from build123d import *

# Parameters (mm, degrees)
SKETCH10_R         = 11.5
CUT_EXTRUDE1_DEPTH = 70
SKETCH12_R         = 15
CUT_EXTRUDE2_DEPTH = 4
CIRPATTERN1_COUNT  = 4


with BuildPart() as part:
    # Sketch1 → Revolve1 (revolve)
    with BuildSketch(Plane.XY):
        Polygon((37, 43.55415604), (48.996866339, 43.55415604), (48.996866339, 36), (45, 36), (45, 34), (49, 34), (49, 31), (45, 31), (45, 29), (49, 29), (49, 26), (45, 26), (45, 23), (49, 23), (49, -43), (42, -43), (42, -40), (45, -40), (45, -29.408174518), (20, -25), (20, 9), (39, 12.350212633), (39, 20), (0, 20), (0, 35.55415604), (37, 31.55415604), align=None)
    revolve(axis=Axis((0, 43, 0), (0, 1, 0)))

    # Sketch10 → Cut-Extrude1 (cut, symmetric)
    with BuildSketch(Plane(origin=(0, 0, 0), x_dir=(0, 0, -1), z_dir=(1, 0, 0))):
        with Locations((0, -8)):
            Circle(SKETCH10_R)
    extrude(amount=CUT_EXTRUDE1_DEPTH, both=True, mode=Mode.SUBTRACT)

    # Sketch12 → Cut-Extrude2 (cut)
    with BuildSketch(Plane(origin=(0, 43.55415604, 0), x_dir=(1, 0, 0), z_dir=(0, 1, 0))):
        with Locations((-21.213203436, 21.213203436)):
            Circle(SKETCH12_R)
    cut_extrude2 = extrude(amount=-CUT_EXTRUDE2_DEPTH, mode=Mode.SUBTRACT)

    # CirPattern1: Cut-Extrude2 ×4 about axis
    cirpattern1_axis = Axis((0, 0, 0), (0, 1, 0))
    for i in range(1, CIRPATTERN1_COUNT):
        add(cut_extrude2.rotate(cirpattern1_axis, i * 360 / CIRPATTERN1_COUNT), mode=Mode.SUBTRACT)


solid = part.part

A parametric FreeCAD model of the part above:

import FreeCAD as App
import Part
import Sketcher

V = App.Vector
Q = App.Units.Quantity

doc = App.newDocument("Part")
params = doc.addObject("Spreadsheet::Sheet", "Params")
for row, (alias, value) in enumerate([
    ("sketch1_width", "39 mm"),
    ("sketch1_width2", "3 mm"),
    ("sketch1_width3", "7 mm"),
    ("sketch1_height", "12 mm"),
    ("sketch1_height2", "34 mm"),
    ("revolution_angle", "360 deg"),
    ("sketch2_diameter", "23 mm"),
    ("pocket1_length", "140 mm"),
    ("sketch3_diameter", "30 mm"),
    ("pocket2_length", "4 mm"),
], start=1):
    params.set(f"A{row}", alias)
    params.set(f"B{row}", "=" + value)
    params.setAlias(f"B{row}", alias)

body = doc.addObject("PartDesign::Body", "Body")

# Sketch on XY plane
sketch1 = body.newObject("Sketcher::SketchObject", "Sketch")
sketch1.AttachmentSupport = (doc.getObject("XY_Plane"), [""])
sketch1.MapMode = "FlatFace"
sketch1.addGeometry([
    Part.LineSegment(V(49, 43.6, 0), V(37, 43.6, 0)),  # 0
    Part.LineSegment(V(37, 43.6, 0), V(37, 31.6, 0)),  # 1
    Part.LineSegment(V(37, 31.6, 0), V(0, 35.6, 0)),  # 2
    Part.LineSegment(V(0, 35.6, 0), V(0, 20, 0)),  # 3
    Part.LineSegment(V(0, 20, 0), V(39, 20, 0)),  # 4
    Part.LineSegment(V(39, 20, 0), V(39, 12.4, 0)),  # 5
    Part.LineSegment(V(39, 12.4, 0), V(20, 9, 0)),  # 6
    Part.LineSegment(V(20, 9, 0), V(20, -25, 0)),  # 7
    Part.LineSegment(V(20, -25, 0), V(45, -29.4, 0)),  # 8
    Part.LineSegment(V(45, -29.4, 0), V(45, -40, 0)),  # 9
    Part.LineSegment(V(45, -40, 0), V(42, -40, 0)),  # 10
    Part.LineSegment(V(42, -40, 0), V(42, -43, 0)),  # 11
    Part.LineSegment(V(42, -43, 0), V(49, -43, 0)),  # 12
    Part.LineSegment(V(49, -43, 0), V(49, 23, 0)),  # 13
    Part.LineSegment(V(49, 23, 0), V(45, 23, 0)),  # 14
    Part.LineSegment(V(45, 23, 0), V(45, 26, 0)),  # 15
    Part.LineSegment(V(45, 26, 0), V(49, 26, 0)),  # 16
    Part.LineSegment(V(49, 26, 0), V(49, 29, 0)),  # 17
    Part.LineSegment(V(49, 29, 0), V(45, 29, 0)),  # 18
    Part.LineSegment(V(45, 29, 0), V(45, 31, 0)),  # 19
    Part.LineSegment(V(45, 31, 0), V(49, 31, 0)),  # 20
    Part.LineSegment(V(49, 31, 0), V(49, 34, 0)),  # 21
    Part.LineSegment(V(49, 34, 0), V(45, 34, 0)),  # 22
    Part.LineSegment(V(45, 34, 0), V(45, 36, 0)),  # 23
    Part.LineSegment(V(45, 36, 0), V(49, 36, 0)),  # 24
    Part.LineSegment(V(49, 36, 0), V(49, 43.6, 0)),  # 25
], False)
sketch1.addConstraint([
    Sketcher.Constraint("Coincident", 0, 2, 1, 1),
    Sketcher.Constraint("Coincident", 1, 2, 2, 1),
    Sketcher.Constraint("Coincident", 2, 2, 3, 1),
    Sketcher.Constraint("Coincident", 3, 2, 4, 1),
    Sketcher.Constraint("Coincident", 4, 2, 5, 1),
    Sketcher.Constraint("Coincident", 5, 2, 6, 1),
    Sketcher.Constraint("Coincident", 6, 2, 7, 1),
    Sketcher.Constraint("Coincident", 7, 2, 8, 1),
    Sketcher.Constraint("Coincident", 8, 2, 9, 1),
    Sketcher.Constraint("Coincident", 9, 2, 10, 1),
    Sketcher.Constraint("Coincident", 10, 2, 11, 1),
    Sketcher.Constraint("Coincident", 11, 2, 12, 1),
    Sketcher.Constraint("Coincident", 12, 2, 13, 1),
    Sketcher.Constraint("Coincident", 13, 2, 14, 1),
    Sketcher.Constraint("Coincident", 14, 2, 15, 1),
    Sketcher.Constraint("Coincident", 15, 2, 16, 1),
    Sketcher.Constraint("Coincident", 16, 2, 17, 1),
    Sketcher.Constraint("Coincident", 17, 2, 18, 1),
    Sketcher.Constraint("Coincident", 18, 2, 19, 1),
    Sketcher.Constraint("Coincident", 19, 2, 20, 1),
    Sketcher.Constraint("Coincident", 20, 2, 21, 1),
    Sketcher.Constraint("Coincident", 21, 2, 22, 1),
    Sketcher.Constraint("Coincident", 22, 2, 23, 1),
    Sketcher.Constraint("Coincident", 23, 2, 24, 1),
    Sketcher.Constraint("Coincident", 24, 2, 25, 1),
    Sketcher.Constraint("Coincident", 25, 2, 0, 1),
    Sketcher.Constraint("Horizontal", 0),
    Sketcher.Constraint("Vertical", 1),
    Sketcher.Constraint("Vertical", 3),
    Sketcher.Constraint("Horizontal", 4),
    Sketcher.Constraint("Vertical", 5),
    Sketcher.Constraint("Vertical", 7),
    Sketcher.Constraint("Vertical", 9),
    Sketcher.Constraint("Horizontal", 10),
    Sketcher.Constraint("Vertical", 11),
    Sketcher.Constraint("Horizontal", 12),
    Sketcher.Constraint("Vertical", 13),
    Sketcher.Constraint("Horizontal", 14),
    Sketcher.Constraint("Vertical", 15),
    Sketcher.Constraint("Horizontal", 16),
    Sketcher.Constraint("Vertical", 17),
    Sketcher.Constraint("Horizontal", 18),
    Sketcher.Constraint("Vertical", 19),
    Sketcher.Constraint("Horizontal", 20),
    Sketcher.Constraint("Vertical", 21),
    Sketcher.Constraint("Horizontal", 22),
    Sketcher.Constraint("Vertical", 23),
    Sketcher.Constraint("Horizontal", 24),
    Sketcher.Constraint("Vertical", 25),
    Sketcher.Constraint("PointOnObject", 2, 2, -2),
    Sketcher.Constraint("Vertical", 9, 2, 14, 2),
    Sketcher.Constraint("Vertical", 13, 2, 16, 2),
    Sketcher.Constraint("Vertical", 15, 2, 18, 2),
    Sketcher.Constraint("Vertical", 17, 2, 20, 2),
    Sketcher.Constraint("Vertical", 19, 2, 22, 2),
    Sketcher.Constraint("Equal", 10, 11),
    Sketcher.Constraint("Equal", 11, 15),
    Sketcher.Constraint("Equal", 15, 17),
    Sketcher.Constraint("Equal", 17, 21),
    Sketcher.Constraint("Equal", 19, 23),
    Sketcher.Constraint("DistanceX", 4, 1, 4, 2, Q("39 mm")),
    Sketcher.Constraint("DistanceX", 10, 2, 10, 1, Q("3 mm")),
    Sketcher.Constraint("DistanceX", 12, 1, 12, 2, Q("7 mm")),
    Sketcher.Constraint("DistanceY", 1, 2, 1, 1, Q("12 mm")),
    Sketcher.Constraint("DistanceY", 7, 2, 7, 1, Q("34 mm")),
    Sketcher.Constraint("DistanceY", 13, 1, 13, 2, Q("66 mm")),
    Sketcher.Constraint("DistanceY", 19, 1, 19, 2, Q("2 mm")),
    Sketcher.Constraint("Angle", 6, Q("-170 deg")),
    Sketcher.Constraint("Angle", 8, Q("-10 deg")),
    Sketcher.Constraint("DistanceX", -1, 1, 0, 2, Q("37 mm")),
    Sketcher.Constraint("DistanceY", -1, 1, 3, 2, Q("20 mm")),
    Sketcher.Constraint("DistanceX", -1, 1, 6, 2, Q("20 mm")),
    Sketcher.Constraint("DistanceY", -1, 1, 6, 2, Q("9 mm")),
    Sketcher.Constraint("DistanceX", -1, 1, 8, 2, Q("45 mm")),
    Sketcher.Constraint("DistanceY", 9, 2, -1, 1, Q("40 mm")),
    Sketcher.Constraint("DistanceY", 1, 2, 2, 2, Q("4 mm")),
    Sketcher.Constraint("DistanceX", 0, 2, 0, 1, Q("11.996866 mm")),
    Sketcher.Constraint("DistanceY", 3, 2, 3, 1, Q("15.554156 mm")),
])
sketch1.setExpression("Constraints[60]", "Params.sketch1_width")
sketch1.setExpression("Constraints[61]", "Params.sketch1_width2")
sketch1.setExpression("Constraints[62]", "Params.sketch1_width3")
sketch1.setExpression("Constraints[63]", "Params.sketch1_height")
sketch1.setExpression("Constraints[64]", "Params.sketch1_height2")
revolution = body.newObject("PartDesign::Revolution", "Revolution")
revolution.Profile = sketch1
revolution.ReferenceAxis = (sketch1, ["V_Axis"])
revolution.setExpression("Angle", "Params.revolution_angle")

# Sketch on YZ plane
sketch2 = body.newObject("Sketcher::SketchObject", "Sketch001")
sketch2.AttachmentSupport = (doc.getObject("YZ_Plane"), [""])
sketch2.MapMode = "FlatFace"
sketch2.addGeometry(Part.Circle(V(-8, 0, 0), V(0, 0, 1), 12), False)
sketch2.addConstraint([
    Sketcher.Constraint("PointOnObject", 0, 3, -1),
    Sketcher.Constraint("Diameter", 0, Q("23 mm")),
    Sketcher.Constraint("DistanceX", 0, 3, -1, 1, Q("8 mm")),
])
sketch2.setExpression("Constraints[1]", "Params.sketch2_diameter")
pocket1 = body.newObject("PartDesign::Pocket", "Pocket")
pocket1.Profile = sketch2
pocket1.setExpression("Length", "Params.pocket1_length")
pocket1.Midplane = True

# Sketch on XZ plane
sketch3 = body.newObject("Sketcher::SketchObject", "Sketch002")
sketch3.AttachmentSupport = (doc.getObject("XZ_Plane"), [""])
sketch3.MapMode = "FlatFace"
sketch3.AttachmentOffset = App.Placement(V(0, 0, -43.554156), App.Rotation())
sketch3.addGeometry(Part.Circle(V(-21, -21, 0), V(0, 0, 1), 15), False)
sketch3.addConstraint([
    Sketcher.Constraint("Diameter", 0, Q("30 mm")),
    Sketcher.Constraint("DistanceX", 0, 3, -1, 1, Q("21.213203 mm")),
    Sketcher.Constraint("DistanceY", 0, 3, -1, 1, Q("21.213203 mm")),
])
sketch3.setExpression("Constraints[0]", "Params.sketch3_diameter")
pocket2 = body.newObject("PartDesign::Pocket", "Pocket001")
pocket2.Profile = sketch3
pocket2.setExpression("Length", "Params.pocket2_length")
pocket2.Reversed = True
doc.recompute()

polarpattern = body.newObject("PartDesign::PolarPattern", "PolarPattern")
polarpattern.Originals = [pocket2]
polarpattern.Axis = (doc.getObject("Y_Axis"), [""])
polarpattern.Angle = 360
polarpattern.Occurrences = 4
body.Tip = polarpattern

doc.recompute()
